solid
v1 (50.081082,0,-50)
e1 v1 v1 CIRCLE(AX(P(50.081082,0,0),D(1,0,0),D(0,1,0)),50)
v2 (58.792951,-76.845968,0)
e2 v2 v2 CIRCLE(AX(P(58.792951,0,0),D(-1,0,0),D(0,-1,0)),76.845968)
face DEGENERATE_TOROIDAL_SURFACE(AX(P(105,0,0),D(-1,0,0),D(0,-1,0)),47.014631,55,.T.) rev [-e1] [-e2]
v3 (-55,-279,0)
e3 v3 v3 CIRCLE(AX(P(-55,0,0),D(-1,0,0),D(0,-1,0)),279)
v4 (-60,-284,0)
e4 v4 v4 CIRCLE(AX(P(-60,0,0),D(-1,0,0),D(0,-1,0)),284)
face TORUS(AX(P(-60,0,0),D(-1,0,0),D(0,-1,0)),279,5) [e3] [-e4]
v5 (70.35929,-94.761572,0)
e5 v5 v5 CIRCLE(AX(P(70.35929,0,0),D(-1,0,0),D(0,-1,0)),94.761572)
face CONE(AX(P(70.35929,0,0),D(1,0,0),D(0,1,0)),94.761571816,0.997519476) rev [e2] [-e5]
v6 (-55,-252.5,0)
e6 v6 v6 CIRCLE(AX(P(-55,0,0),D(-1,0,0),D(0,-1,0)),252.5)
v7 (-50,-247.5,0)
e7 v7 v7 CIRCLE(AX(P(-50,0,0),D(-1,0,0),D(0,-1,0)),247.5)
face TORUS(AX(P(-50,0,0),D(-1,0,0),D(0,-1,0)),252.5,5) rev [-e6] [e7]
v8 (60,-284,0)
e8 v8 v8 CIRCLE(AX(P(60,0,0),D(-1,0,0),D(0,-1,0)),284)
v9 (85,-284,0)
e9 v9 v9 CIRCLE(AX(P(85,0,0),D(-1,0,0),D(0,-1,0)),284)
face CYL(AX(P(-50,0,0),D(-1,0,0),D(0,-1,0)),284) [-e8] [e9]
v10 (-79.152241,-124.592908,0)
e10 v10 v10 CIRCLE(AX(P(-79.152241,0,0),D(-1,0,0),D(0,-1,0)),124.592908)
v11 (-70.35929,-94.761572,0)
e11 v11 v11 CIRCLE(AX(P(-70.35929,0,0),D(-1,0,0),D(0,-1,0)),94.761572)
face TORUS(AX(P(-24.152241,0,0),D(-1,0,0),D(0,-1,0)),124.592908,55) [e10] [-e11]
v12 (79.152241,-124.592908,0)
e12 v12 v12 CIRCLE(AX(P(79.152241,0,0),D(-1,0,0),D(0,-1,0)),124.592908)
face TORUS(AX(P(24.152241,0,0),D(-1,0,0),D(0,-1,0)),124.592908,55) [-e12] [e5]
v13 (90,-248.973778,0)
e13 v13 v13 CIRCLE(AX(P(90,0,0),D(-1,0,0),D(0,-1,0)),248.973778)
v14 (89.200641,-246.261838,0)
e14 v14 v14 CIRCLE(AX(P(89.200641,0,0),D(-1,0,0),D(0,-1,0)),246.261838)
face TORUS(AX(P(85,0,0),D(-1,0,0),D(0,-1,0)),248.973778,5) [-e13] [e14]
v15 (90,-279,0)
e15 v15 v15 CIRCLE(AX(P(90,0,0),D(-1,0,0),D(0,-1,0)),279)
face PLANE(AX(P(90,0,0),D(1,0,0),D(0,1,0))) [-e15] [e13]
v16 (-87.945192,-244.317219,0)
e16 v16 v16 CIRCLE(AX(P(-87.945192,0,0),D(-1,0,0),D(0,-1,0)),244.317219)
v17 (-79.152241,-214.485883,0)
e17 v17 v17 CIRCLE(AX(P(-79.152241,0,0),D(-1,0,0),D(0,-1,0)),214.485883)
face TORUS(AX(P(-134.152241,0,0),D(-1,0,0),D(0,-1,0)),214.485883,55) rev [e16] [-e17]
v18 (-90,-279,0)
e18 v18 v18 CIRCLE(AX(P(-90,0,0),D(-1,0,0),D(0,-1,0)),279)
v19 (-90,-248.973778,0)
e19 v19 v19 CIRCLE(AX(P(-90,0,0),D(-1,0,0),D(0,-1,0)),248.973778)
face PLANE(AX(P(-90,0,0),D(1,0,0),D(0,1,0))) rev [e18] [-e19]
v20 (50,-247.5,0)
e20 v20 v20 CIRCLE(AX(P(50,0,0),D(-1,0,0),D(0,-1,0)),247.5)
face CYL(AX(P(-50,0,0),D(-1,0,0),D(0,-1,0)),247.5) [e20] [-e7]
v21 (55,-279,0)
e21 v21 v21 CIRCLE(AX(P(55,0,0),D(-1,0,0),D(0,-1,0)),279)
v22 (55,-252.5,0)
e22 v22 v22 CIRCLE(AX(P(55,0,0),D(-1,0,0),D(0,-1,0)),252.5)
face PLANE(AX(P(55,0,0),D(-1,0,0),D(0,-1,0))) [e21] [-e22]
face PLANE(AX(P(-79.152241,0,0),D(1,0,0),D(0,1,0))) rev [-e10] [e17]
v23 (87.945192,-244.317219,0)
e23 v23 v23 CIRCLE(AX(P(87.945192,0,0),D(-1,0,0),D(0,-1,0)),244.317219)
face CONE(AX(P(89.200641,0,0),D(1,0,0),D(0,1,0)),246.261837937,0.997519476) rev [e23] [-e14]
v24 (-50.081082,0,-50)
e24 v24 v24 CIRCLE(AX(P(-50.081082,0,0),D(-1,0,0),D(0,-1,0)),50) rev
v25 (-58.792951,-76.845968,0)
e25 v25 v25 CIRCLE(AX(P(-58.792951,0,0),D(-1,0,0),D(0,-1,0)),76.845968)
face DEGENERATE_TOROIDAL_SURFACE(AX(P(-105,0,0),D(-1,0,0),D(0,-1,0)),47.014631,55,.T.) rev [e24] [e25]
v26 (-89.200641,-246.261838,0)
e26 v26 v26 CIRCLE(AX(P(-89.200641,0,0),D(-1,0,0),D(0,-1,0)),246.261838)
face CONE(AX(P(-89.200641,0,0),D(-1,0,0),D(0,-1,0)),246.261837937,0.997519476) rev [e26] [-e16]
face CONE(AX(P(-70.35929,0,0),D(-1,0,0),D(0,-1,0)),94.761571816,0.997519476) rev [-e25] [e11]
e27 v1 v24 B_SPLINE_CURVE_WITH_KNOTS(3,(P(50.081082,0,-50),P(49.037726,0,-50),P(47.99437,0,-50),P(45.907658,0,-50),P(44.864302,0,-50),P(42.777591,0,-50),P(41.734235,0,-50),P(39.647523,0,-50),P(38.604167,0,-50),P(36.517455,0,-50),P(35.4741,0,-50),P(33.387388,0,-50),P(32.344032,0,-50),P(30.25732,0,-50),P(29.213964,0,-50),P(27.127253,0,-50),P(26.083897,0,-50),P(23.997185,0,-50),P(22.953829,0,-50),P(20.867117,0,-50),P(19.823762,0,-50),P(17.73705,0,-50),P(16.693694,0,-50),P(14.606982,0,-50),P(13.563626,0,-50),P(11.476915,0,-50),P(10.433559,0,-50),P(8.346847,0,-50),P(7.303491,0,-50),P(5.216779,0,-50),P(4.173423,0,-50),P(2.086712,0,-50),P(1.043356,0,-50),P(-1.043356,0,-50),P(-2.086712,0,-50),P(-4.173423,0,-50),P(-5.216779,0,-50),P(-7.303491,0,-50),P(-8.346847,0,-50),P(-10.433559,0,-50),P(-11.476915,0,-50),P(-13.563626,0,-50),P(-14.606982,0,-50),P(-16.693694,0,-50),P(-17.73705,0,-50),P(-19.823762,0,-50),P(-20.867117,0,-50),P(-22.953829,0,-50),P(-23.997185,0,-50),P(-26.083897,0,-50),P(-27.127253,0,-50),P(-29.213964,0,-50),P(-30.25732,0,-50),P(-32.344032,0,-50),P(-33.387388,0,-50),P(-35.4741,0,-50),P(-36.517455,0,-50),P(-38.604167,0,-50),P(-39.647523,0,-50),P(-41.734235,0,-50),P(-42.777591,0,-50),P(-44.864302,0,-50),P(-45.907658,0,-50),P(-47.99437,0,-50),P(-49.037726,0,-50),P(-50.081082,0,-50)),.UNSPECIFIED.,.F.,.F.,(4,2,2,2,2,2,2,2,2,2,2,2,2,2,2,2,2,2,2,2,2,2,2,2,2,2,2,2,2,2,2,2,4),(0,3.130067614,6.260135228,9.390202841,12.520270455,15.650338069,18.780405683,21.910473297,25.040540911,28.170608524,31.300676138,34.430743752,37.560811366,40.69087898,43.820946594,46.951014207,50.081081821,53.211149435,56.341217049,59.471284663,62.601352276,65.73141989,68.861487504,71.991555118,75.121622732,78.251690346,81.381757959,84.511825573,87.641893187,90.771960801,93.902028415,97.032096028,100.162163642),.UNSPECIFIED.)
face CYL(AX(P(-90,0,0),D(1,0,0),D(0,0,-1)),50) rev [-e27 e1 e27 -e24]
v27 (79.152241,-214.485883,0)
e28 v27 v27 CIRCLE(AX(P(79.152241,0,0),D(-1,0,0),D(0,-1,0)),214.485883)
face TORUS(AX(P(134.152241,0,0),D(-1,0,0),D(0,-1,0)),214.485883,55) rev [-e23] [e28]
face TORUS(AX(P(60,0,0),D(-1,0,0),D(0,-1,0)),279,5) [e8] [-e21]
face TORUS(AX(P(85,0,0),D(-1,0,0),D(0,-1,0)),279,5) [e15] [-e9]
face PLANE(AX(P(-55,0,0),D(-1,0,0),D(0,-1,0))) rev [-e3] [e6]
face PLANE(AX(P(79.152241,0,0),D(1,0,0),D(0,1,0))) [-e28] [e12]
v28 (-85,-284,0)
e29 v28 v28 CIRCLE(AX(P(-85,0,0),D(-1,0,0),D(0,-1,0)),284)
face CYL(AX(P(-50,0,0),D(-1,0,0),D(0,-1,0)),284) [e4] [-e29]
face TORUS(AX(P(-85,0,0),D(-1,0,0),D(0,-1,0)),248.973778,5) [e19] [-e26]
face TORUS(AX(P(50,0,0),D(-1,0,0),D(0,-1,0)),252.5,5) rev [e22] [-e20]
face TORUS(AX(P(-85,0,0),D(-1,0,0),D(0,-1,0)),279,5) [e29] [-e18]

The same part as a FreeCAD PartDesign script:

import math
import FreeCAD as App
import Part
import Sketcher
from FreeCAD import Vector
Q = App.Units.Quantity

doc = App.newDocument("Part")
body = doc.addObject("PartDesign::Body", "Body")

# Sketch on XY plane
sketch1 = body.newObject("Sketcher::SketchObject", "Sketch")
sketch1.AttachmentSupport = (doc.getObject("XY_Plane"), [""])
sketch1.MapMode = "FlatFace"
sketch1.addGeometry([
    Part.LineSegment(Vector(-89.2, 246.3, 0), Vector(-87.9, 244.3, 0)),  # 0
    Part.ArcOfCircle(Part.Circle(Vector(-134.2, 214.5, 0), Vector(0, 0, 1), 55), math.radians(0), math.radians(33)),  # 1
    Part.LineSegment(Vector(-79.2, 214.5, 0), Vector(-79.2, 124.6, 0)),  # 2
    Part.ArcOfCircle(Part.Circle(Vector(-24.2, 124.6, 0), Vector(0, 0, 1), 55), math.radians(-180), math.radians(-147)),  # 3
    Part.LineSegment(Vector(-70.4, 94.8, 0), Vector(-58.8, 76.8, 0)),  # 4
    Part.ArcOfCircle(Part.Circle(Vector(-105, 47, 0), Vector(0, 0, 1), 55), math.radians(0), math.radians(33)),  # 5
    Part.LineSegment(Vector(-50, 47, 0), Vector(-50, 0, 0)),  # 6
    Part.LineSegment(Vector(-50, 0, 0), Vector(50, 0, 0)),  # 7
    Part.LineSegment(Vector(50, 0, 0), Vector(50, 47, 0)),  # 8
    Part.ArcOfCircle(Part.Circle(Vector(105, 47, 0), Vector(0, 0, 1), 55), math.radians(147), math.radians(180)),  # 9
    Part.LineSegment(Vector(58.8, 76.8, 0), Vector(70.4, 94.8, 0)),  # 10
    Part.ArcOfCircle(Part.Circle(Vector(24.2, 124.6, 0), Vector(0, 0, 1), 55), math.radians(-33), math.radians(0)),  # 11
    Part.LineSegment(Vector(79.2, 124.6, 0), Vector(79.2, 214.5, 0)),  # 12
    Part.ArcOfCircle(Part.Circle(Vector(134.2, 214.5, 0), Vector(0, 0, 1), 55), math.radians(147), math.radians(180)),  # 13
    Part.LineSegment(Vector(87.9, 244.3, 0), Vector(89.2, 246.3, 0)),  # 14
    Part.ArcOfCircle(Part.Circle(Vector(85, 249, 0), Vector(0, 0, 1), 5), math.radians(-33), math.radians(0)),  # 15
    Part.LineSegment(Vector(90, 249, 0), Vector(90, 279, 0)),  # 16
    Part.ArcOfCircle(Part.Circle(Vector(85, 279, 0), Vector(0, 0, 1), 5), math.radians(0), math.radians(90)),  # 17
    Part.LineSegment(Vector(85, 284, 0), Vector(60, 284, 0)),  # 18
    Part.ArcOfCircle(Part.Circle(Vector(60, 279, 0), Vector(0, 0, 1), 5), math.radians(90), math.radians(180)),  # 19
    Part.LineSegment(Vector(55, 279, 0), Vector(55, 252.5, 0)),  # 20
    Part.ArcOfCircle(Part.Circle(Vector(50, 252.5, 0), Vector(0, 0, 1), 5), math.radians(-90), math.radians(0)),  # 21
    Part.LineSegment(Vector(50, 247.5, 0), Vector(-50, 247.5, 0)),  # 22
    Part.ArcOfCircle(Part.Circle(Vector(-50, 252.5, 0), Vector(0, 0, 1), 5), math.radians(180), math.radians(270)),  # 23
    Part.LineSegment(Vector(-55, 252.5, 0), Vector(-55, 279, 0)),  # 24
    Part.ArcOfCircle(Part.Circle(Vector(-60, 279, 0), Vector(0, 0, 1), 5), math.radians(0), math.radians(90)),  # 25
    Part.LineSegment(Vector(-60, 284, 0), Vector(-85, 284, 0)),  # 26
    Part.ArcOfCircle(Part.Circle(Vector(-85, 279, 0), Vector(0, 0, 1), 5), math.radians(90), math.radians(180)),  # 27
    Part.LineSegment(Vector(-90, 279, 0), Vector(-90, 249, 0)),  # 28
    Part.ArcOfCircle(Part.Circle(Vector(-85, 249, 0), Vector(0, 0, 1), 5), math.radians(180), math.radians(213)),  # 29
], False)
sketch1.addConstraint([
    Sketcher.Constraint("Tangent", 0, 2, 1, 2),
    Sketcher.Constraint("Tangent", 1, 1, 2, 1),
    Sketcher.Constraint("Tangent", 2, 2, 3, 1),
    Sketcher.Constraint("Tangent", 3, 2, 4, 1),
    Sketcher.Constraint("Tangent", 4, 2, 5, 2),
    Sketcher.Constraint("Tangent", 5, 1, 6, 1),
    Sketcher.Constraint("Coincident", 6, 2, 7, 1),
    Sketcher.Constraint("Coincident", 7, 2, 8, 1),
    Sketcher.Constraint("Tangent", 8, 2, 9, 2),
    Sketcher.Constraint("Tangent", 9, 1, 10, 1),
    Sketcher.Constraint("Tangent", 10, 2, 11, 1),
    Sketcher.Constraint("Tangent", 11, 2, 12, 1),
    Sketcher.Constraint("Tangent", 12, 2, 13, 2),
    Sketcher.Constraint("Tangent", 13, 1, 14, 1),
    Sketcher.Constraint("Tangent", 14, 2, 15, 1),
    Sketcher.Constraint("Tangent", 15, 2, 16, 1),
    Sketcher.Constraint("Tangent", 16, 2, 17, 1),
    Sketcher.Constraint("Tangent", 17, 2, 18, 1),
    Sketcher.Constraint("Tangent", 18, 2, 19, 1),
    Sketcher.Constraint("Tangent", 19, 2, 20, 1),
    Sketcher.Constraint("Tangent", 20, 2, 21, 2),
    Sketcher.Constraint("Tangent", 21, 1, 22, 1),
    Sketcher.Constraint("Tangent", 22, 2, 23, 2),
    Sketcher.Constraint("Tangent", 23, 1, 24, 1),
    Sketcher.Constraint("Tangent", 24, 2, 25, 1),
    Sketcher.Constraint("Tangent", 25, 2, 26, 1),
    Sketcher.Constraint("Tangent", 26, 2, 27, 1),
    Sketcher.Constraint("Tangent", 27, 2, 28, 1),
    Sketcher.Constraint("Tangent", 28, 2, 29, 1),
    Sketcher.Constraint("Tangent", 29, 2, 0, 1),
    Sketcher.Constraint("Vertical", 2),
    Sketcher.Constraint("Vertical", 6),
    Sketcher.Constraint("Horizontal", 7),
    Sketcher.Constraint("Vertical", 8),
    Sketcher.Constraint("Vertical", 12),
    Sketcher.Constraint("Vertical", 16),
    Sketcher.Constraint("Horizontal", 18),
    Sketcher.Constraint("Vertical", 20),
    Sketcher.Constraint("Horizontal", 22),
    Sketcher.Constraint("Vertical", 24),
    Sketcher.Constraint("Horizontal", 26),
    Sketcher.Constraint("Vertical", 28),
    Sketcher.Constraint("Equal", 1, 3),
    Sketcher.Constraint("Equal", 3, 5),
    Sketcher.Constraint("Equal", 5, 9),
    Sketcher.Constraint("Equal", 9, 11),
    Sketcher.Constraint("Equal", 11, 13),
    Sketcher.Constraint("Equal", 15, 17),
    Sketcher.Constraint("Equal", 17, 19),
    Sketcher.Constraint("Equal", 19, 21),
    Sketcher.Constraint("Equal", 21, 23),
    Sketcher.Constraint("Equal", 23, 25),
    Sketcher.Constraint("Equal", 25, 27),
    Sketcher.Constraint("Equal", 27, 29),
    Sketcher.Constraint("Symmetric", 6, 2, 7, 2, -1, 1),
    Sketcher.Constraint("Symmetric", 3, 3, 11, 3, -2),
    Sketcher.Constraint("Symmetric", 19, 3, 25, 3, -2),
    Sketcher.Constraint("Symmetric", 15, 3, 29, 3, -2),
    Sketcher.Constraint("Parallel", 0, 4),
    Sketcher.Constraint("Parallel", 10, 14),
    Sketcher.Constraint("Horizontal", 5, 3, 9, 3),
    Sketcher.Constraint("Vertical", 23, 3, 5, 1),
    Sketcher.Constraint("Radius", 1, Q("55 mm")),
    Sketcher.Constraint("Radius", 15, Q("5 mm")),
    Sketcher.Constraint("DistanceX", 7, 1, 7, 2, Q("100 mm")),
    Sketcher.Constraint("DistanceX", 18, 2, 18, 1, Q("25 mm")),
    Sketcher.Constraint("DistanceY", 20, 2, 20, 1, Q("26.5 mm")),
    Sketcher.Constraint("DistanceY", -1, 1, 17, 3, Q("279 mm")),
    Sketcher.Constraint("DistanceY", 6, 2, 6, 1, Q("47.014631 mm")),
    Sketcher.Constraint("DistanceX", 12, 2, 14, 2, Q("10.048399 mm")),
    Sketcher.Constraint("Distance", 0, Q("2.314669 mm")),
    Sketcher.Constraint("DistanceY", 2, 2, 2, 1, Q("89.892975 mm")),
])
revolution = body.newObject("PartDesign::Revolution", "Revolution")
revolution.Profile = sketch1
revolution.ReferenceAxis = (sketch1, ["H_Axis"])
revolution.Angle = 360

# Sketch on YZ plane
sketch2 = body.newObject("Sketcher::SketchObject", "Sketch001")
sketch2.AttachmentSupport = (doc.getObject("YZ_Plane"), [""])
sketch2.MapMode = "FlatFace"
sketch2.addGeometry(Part.Circle(Vector(0, 0, 0), Vector(0, 0, 1), 50), False)
sketch2.addConstraint([
    Sketcher.Constraint("Coincident", 0, 3, -1, 1),
    Sketcher.Constraint("Diameter", 0, Q("100 mm")),
])
pocket1 = body.newObject("PartDesign::Pocket", "Pocket")
pocket1.Profile = sketch2
pocket1.Type = "ThroughAll"
pocket1.Midplane = True

doc.recompute()
